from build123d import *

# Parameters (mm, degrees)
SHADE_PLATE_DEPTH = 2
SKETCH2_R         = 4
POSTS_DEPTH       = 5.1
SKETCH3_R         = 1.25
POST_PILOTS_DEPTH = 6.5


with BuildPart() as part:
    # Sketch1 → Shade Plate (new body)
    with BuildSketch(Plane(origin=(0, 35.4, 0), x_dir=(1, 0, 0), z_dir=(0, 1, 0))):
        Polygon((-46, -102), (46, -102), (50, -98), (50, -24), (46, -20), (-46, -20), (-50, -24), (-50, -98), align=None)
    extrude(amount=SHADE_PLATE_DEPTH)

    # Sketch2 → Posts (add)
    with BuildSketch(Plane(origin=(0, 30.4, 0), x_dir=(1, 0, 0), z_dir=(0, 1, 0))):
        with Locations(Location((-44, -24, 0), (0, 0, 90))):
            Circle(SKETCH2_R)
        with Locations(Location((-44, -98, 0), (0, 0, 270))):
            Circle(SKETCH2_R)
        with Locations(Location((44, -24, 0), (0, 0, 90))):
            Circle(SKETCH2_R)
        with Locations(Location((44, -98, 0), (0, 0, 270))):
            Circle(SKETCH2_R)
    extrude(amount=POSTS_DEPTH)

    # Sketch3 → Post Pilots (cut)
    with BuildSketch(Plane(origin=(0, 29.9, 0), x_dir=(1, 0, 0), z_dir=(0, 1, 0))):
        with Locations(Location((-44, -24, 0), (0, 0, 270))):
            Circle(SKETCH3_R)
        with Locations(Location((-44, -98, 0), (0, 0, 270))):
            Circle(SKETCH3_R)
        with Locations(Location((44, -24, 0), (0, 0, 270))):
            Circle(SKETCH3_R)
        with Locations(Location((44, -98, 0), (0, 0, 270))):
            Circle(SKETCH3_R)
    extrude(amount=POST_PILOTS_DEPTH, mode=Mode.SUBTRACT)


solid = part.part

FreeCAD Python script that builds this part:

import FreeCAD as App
import Part
import Sketcher

V = App.Vector

doc = App.newDocument("Part")
body = doc.addObject("PartDesign::Body", "Body")

sketch1 = body.newObject("Sketcher::SketchObject", "Sketch")
sketch1.AttachmentSupport = (doc.getObject("XZ_Plane"), [""])
sketch1.MapMode = "FlatFace"
sketch1.AttachmentOffset = App.Placement(V(0, 0, -35.4), App.Rotation())
sketch1.addGeometry([
    Part.LineSegment(V(-46, 102, 0), V(46, 102, 0)),
    Part.LineSegment(V(46, 102, 0), V(50, 98, 0)),
    Part.LineSegment(V(50, 98, 0), V(50, 24, 0)),
    Part.LineSegment(V(50, 24, 0), V(46, 20, 0)),
    Part.LineSegment(V(46, 20, 0), V(-46, 20, 0)),
    Part.LineSegment(V(-46, 20, 0), V(-50, 24, 0)),
    Part.LineSegment(V(-50, 24, 0), V(-50, 98, 0)),
    Part.LineSegment(V(-50, 98, 0), V(-46, 102, 0)),
], False)
sketch1.addConstraint([
    Sketcher.Constraint("Coincident", 0, 2, 1, 1),
    Sketcher.Constraint("Coincident", 1, 2, 2, 1),
    Sketcher.Constraint("Coincident", 2, 2, 3, 1),
    Sketcher.Constraint("Coincident", 3, 2, 4, 1),
    Sketcher.Constraint("Coincident", 4, 2, 5, 1),
    Sketcher.Constraint("Coincident", 5, 2, 6, 1),
    Sketcher.Constraint("Coincident", 6, 2, 7, 1),
    Sketcher.Constraint("Coincident", 7, 2, 0, 1),
    Sketcher.Constraint("Horizontal", 0),
    Sketcher.Constraint("Vertical", 2),
    Sketcher.Constraint("Horizontal", 4),
    Sketcher.Constraint("Vertical", 6),
    Sketcher.Constraint("Symmetric", 2, 2, 5, 2, -2),
    Sketcher.Constraint("Perpendicular", 1, 3),
    Sketcher.Constraint("Perpendicular", 3, 5),
    Sketcher.Constraint("Perpendicular", 5, 7),
    Sketcher.Constraint("Horizontal", 1, 2, 6, 2),
    Sketcher.Constraint("Vertical", 0, 2, 3, 2),
    Sketcher.Constraint("Vertical", 4, 2, 7, 2),
    Sketcher.Constraint("DistanceX", 0, 1, 0, 2, 92.0),
    Sketcher.Constraint("DistanceY", 2, 2, 2, 1, 74.0),
    Sketcher.Constraint("DistanceY", -1, 1, 0, 2, 102.0),
    Sketcher.Constraint("DistanceX", -1, 1, 1, 2, 50.0),
])
pad1 = body.newObject("PartDesign::Pad", "Pad")
pad1.Profile = sketch1
pad1.Length = 2
pad1.Reversed = True

sketch2 = body.newObject("Sketcher::SketchObject", "Sketch001")
sketch2.AttachmentSupport = (doc.getObject("XZ_Plane"), [""])
sketch2.MapMode = "FlatFace"
sketch2.AttachmentOffset = App.Placement(V(0, 0, -30.4), App.Rotation())
sketch2.addGeometry([
    Part.Circle(V(-44, 24, 0), V(0, 0, 1), 4),
    Part.Circle(V(-44, 98, 0), V(0, 0, 1), 4),
    Part.Circle(V(44, 24, 0), V(0, 0, 1), 4),
    Part.Circle(V(44, 98, 0), V(0, 0, 1), 4),
], False)
sketch2.addConstraint([
    Sketcher.Constraint("Equal", 0, 1),
    Sketcher.Constraint("Equal", 1, 2),
    Sketcher.Constraint("Equal", 2, 3),
    Sketcher.Constraint("Symmetric", 0, 3, 2, 3, -2),
    Sketcher.Constraint("Symmetric", 1, 3, 3, 3, -2),
    Sketcher.Constraint("Vertical", 0, 3, 1, 3),
    Sketcher.Constraint("Diameter", 0, 8.0),
    Sketcher.Constraint("DistanceX", 0, 3, -1, 1, 44.0),
    Sketcher.Constraint("DistanceY", -1, 1, 0, 3, 24.0),
    Sketcher.Constraint("DistanceY", -1, 1, 1, 3, 98.0),
])
pad2 = body.newObject("PartDesign::Pad", "Pad001")
pad2.Profile = sketch2
pad2.Length = 5.1
pad2.Reversed = True

sketch3 = body.newObject("Sketcher::SketchObject", "Sketch002")
sketch3.AttachmentSupport = (doc.getObject("XZ_Plane"), [""])
sketch3.MapMode = "FlatFace"
sketch3.AttachmentOffset = App.Placement(V(0, 0, -29.9), App.Rotation())
sketch3.addGeometry([
    Part.Circle(V(-44, 24, 0), V(0, 0, 1), 1.2),
    Part.Circle(V(-44, 98, 0), V(0, 0, 1), 1.2),
    Part.Circle(V(44, 24, 0), V(0, 0, 1), 1.2),
    Part.Circle(V(44, 98, 0), V(0, 0, 1), 1.2),
], False)
sketch3.addConstraint([
    Sketcher.Constraint("Equal", 0, 1),
    Sketcher.Constraint("Equal", 1, 2),
    Sketcher.Constraint("Equal", 2, 3),
    Sketcher.Constraint("Symmetric", 0, 3, 2, 3, -2),
    Sketcher.Constraint("Symmetric", 1, 3, 3, 3, -2),
    Sketcher.Constraint("Vertical", 0, 3, 1, 3),
    Sketcher.Constraint("Diameter", 0, 2.5),
    Sketcher.Constraint("DistanceX", 0, 3, -1, 1, 44.0),
    Sketcher.Constraint("DistanceY", -1, 1, 0, 3, 24.0),
    Sketcher.Constraint("DistanceY", -1, 1, 1, 3, 98.0),
])
pocket1 = body.newObject("PartDesign::Pocket", "Pocket")
pocket1.Profile = sketch3
pocket1.Length = 6.5

doc.recompute()
